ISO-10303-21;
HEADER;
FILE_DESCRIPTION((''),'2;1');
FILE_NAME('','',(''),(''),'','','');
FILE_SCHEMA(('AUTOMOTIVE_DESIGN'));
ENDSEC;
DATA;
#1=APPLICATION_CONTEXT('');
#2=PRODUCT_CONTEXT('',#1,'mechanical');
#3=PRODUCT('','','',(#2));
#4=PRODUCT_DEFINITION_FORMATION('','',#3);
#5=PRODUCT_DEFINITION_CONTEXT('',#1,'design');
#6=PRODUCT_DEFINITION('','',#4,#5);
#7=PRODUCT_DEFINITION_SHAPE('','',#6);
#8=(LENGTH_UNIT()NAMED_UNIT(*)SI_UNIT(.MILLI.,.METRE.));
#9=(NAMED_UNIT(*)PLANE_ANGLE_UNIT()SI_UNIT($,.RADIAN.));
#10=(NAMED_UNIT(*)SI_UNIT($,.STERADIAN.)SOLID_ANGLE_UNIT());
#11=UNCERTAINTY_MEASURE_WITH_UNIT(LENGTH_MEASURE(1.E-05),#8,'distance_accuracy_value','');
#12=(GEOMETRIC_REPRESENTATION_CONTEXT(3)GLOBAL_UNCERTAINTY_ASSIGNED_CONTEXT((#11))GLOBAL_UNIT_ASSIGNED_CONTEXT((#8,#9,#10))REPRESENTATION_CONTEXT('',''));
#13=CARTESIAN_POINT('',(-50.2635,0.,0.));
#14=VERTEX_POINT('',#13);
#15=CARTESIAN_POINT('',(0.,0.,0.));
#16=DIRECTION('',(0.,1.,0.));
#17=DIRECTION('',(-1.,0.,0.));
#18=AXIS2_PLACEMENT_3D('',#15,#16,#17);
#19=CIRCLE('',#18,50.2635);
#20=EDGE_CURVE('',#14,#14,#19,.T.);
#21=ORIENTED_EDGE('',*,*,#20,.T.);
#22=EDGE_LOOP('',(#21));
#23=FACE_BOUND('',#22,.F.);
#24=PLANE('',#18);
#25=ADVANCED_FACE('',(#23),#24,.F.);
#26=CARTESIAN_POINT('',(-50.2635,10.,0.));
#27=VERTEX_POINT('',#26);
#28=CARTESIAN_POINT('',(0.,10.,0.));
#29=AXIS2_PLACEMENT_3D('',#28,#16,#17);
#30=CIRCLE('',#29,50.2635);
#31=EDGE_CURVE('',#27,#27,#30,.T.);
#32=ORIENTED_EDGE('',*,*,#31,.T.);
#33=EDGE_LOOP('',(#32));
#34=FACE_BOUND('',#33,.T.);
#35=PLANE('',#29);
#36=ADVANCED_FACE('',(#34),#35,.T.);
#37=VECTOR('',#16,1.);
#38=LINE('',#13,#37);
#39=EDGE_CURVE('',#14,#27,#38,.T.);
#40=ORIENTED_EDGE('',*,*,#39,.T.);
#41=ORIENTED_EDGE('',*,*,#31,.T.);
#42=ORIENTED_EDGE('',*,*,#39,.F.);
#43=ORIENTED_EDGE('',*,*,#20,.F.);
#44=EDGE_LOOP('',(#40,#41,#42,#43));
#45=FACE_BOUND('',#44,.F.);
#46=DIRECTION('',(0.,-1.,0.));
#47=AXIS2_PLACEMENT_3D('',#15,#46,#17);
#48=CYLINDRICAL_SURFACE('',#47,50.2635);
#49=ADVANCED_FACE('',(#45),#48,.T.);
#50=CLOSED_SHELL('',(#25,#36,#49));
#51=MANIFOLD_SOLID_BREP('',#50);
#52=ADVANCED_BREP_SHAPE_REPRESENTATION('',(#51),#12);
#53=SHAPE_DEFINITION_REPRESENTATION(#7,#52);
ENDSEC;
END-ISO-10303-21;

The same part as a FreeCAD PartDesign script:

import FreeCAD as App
import Part
import Sketcher
from FreeCAD import Vector
Q = App.Units.Quantity

doc = App.newDocument("Part")
body = doc.addObject("PartDesign::Body", "Body")

sketch1 = body.newObject("Sketcher::SketchObject", "Sketch")
sketch1.AttachmentSupport = (doc.getObject("XZ_Plane"), [""])
sketch1.MapMode = "FlatFace"
sketch1.addGeometry(Part.Circle(Vector(0, 0, 0), Vector(0, 0, 1), 50), False)
sketch1.addConstraint([
    Sketcher.Constraint("Coincident", 0, 3, -1, 1),
    Sketcher.Constraint("Diameter", 0, Q("100.527 mm")),
])
pad1 = body.newObject("PartDesign::Pad", "Pad")
pad1.Profile = sketch1
pad1.Length = 10
pad1.Reversed = True

doc.recompute()
